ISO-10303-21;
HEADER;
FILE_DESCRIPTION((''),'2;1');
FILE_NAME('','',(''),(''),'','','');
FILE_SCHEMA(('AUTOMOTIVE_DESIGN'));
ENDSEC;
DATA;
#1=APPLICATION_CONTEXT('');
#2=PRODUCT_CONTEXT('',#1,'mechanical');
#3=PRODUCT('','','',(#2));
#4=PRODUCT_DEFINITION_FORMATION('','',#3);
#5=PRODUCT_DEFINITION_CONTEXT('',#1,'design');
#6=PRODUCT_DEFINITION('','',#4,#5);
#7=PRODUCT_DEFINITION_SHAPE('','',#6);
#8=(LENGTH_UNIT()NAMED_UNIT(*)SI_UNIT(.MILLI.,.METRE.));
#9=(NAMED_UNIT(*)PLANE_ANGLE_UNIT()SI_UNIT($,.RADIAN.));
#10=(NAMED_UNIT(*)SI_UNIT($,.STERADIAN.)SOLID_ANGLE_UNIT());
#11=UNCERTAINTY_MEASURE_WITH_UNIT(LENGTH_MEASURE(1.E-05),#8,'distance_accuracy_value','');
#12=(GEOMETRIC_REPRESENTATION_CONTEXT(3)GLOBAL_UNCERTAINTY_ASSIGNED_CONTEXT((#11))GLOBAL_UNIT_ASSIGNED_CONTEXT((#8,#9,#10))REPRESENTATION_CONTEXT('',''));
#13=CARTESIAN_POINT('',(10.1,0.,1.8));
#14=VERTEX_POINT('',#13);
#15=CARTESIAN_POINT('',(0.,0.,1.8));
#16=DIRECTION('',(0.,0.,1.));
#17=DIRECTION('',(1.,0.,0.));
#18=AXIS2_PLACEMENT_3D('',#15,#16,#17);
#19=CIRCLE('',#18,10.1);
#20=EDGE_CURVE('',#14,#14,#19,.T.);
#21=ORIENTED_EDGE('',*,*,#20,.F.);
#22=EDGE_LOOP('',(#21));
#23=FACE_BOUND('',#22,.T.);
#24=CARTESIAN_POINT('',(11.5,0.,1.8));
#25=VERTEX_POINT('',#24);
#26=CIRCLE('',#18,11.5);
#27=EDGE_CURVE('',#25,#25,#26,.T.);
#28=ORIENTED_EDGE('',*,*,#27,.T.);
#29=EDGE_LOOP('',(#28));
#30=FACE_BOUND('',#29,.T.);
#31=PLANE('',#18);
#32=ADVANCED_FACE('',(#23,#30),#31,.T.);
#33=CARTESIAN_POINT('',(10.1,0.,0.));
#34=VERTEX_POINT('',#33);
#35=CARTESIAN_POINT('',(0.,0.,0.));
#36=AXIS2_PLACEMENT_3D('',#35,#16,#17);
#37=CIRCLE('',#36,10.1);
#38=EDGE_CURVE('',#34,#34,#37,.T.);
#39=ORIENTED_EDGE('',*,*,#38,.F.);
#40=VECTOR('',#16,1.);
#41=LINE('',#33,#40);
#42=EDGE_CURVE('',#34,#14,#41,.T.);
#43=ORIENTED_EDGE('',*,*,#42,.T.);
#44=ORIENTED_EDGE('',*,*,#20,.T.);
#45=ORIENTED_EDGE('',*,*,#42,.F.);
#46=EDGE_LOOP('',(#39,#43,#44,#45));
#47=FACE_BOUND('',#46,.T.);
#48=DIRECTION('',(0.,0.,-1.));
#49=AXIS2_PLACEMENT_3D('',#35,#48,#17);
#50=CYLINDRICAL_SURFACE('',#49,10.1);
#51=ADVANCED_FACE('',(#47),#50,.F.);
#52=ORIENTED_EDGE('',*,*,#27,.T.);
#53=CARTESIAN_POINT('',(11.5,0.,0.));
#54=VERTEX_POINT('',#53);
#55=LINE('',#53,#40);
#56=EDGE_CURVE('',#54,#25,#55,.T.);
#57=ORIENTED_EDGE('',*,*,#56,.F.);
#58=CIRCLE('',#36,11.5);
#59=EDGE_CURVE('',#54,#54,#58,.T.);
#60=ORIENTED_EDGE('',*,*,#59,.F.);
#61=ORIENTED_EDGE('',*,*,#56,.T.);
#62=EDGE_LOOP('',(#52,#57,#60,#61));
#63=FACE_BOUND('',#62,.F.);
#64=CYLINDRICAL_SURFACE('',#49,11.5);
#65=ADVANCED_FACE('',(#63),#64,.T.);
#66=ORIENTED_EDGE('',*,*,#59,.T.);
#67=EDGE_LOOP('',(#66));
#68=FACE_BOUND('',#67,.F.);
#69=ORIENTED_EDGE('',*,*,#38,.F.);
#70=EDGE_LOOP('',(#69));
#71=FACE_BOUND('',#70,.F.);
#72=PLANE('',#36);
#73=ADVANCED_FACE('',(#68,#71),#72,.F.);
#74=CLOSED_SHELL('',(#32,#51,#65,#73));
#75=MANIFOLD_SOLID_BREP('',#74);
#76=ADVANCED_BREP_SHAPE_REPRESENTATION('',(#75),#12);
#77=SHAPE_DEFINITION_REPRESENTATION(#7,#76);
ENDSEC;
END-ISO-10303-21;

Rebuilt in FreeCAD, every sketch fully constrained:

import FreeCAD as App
import Part
import Sketcher
Q = App.Units.Quantity

doc = App.newDocument("Part")
body = doc.addObject("PartDesign::Body", "Body")

sketch1 = doc.addObject("Sketcher::SketchObject", "Sketch")
body.addObject(sketch1)
sketch1.AttachmentSupport = (doc.XY_Plane, [""])
sketch1.MapMode = "FlatFace"
sketch1.addGeometry(Part.Circle(App.Vector(0, 0, 0), App.Vector(0, 0, 1), 11.5), False)
sketch1.addGeometry(Part.Circle(App.Vector(0, 0, 0), App.Vector(0, 0, 1), 10.1), False)
sketch1.addConstraint(Sketcher.Constraint("Coincident", 0, 3, -1, 1))
sketch1.addConstraint(Sketcher.Constraint("Coincident", 1, 3, -1, 1))
sketch1.addConstraint(Sketcher.Constraint("Diameter", 0, Q("23 mm")))
sketch1.addConstraint(Sketcher.Constraint("Diameter", 1, Q("20.2 mm")))
pad1 = doc.addObject("PartDesign::Pad", "Pad")
body.addObject(pad1)
pad1.Profile = sketch1
pad1.Length = 1.8

doc.recompute()
